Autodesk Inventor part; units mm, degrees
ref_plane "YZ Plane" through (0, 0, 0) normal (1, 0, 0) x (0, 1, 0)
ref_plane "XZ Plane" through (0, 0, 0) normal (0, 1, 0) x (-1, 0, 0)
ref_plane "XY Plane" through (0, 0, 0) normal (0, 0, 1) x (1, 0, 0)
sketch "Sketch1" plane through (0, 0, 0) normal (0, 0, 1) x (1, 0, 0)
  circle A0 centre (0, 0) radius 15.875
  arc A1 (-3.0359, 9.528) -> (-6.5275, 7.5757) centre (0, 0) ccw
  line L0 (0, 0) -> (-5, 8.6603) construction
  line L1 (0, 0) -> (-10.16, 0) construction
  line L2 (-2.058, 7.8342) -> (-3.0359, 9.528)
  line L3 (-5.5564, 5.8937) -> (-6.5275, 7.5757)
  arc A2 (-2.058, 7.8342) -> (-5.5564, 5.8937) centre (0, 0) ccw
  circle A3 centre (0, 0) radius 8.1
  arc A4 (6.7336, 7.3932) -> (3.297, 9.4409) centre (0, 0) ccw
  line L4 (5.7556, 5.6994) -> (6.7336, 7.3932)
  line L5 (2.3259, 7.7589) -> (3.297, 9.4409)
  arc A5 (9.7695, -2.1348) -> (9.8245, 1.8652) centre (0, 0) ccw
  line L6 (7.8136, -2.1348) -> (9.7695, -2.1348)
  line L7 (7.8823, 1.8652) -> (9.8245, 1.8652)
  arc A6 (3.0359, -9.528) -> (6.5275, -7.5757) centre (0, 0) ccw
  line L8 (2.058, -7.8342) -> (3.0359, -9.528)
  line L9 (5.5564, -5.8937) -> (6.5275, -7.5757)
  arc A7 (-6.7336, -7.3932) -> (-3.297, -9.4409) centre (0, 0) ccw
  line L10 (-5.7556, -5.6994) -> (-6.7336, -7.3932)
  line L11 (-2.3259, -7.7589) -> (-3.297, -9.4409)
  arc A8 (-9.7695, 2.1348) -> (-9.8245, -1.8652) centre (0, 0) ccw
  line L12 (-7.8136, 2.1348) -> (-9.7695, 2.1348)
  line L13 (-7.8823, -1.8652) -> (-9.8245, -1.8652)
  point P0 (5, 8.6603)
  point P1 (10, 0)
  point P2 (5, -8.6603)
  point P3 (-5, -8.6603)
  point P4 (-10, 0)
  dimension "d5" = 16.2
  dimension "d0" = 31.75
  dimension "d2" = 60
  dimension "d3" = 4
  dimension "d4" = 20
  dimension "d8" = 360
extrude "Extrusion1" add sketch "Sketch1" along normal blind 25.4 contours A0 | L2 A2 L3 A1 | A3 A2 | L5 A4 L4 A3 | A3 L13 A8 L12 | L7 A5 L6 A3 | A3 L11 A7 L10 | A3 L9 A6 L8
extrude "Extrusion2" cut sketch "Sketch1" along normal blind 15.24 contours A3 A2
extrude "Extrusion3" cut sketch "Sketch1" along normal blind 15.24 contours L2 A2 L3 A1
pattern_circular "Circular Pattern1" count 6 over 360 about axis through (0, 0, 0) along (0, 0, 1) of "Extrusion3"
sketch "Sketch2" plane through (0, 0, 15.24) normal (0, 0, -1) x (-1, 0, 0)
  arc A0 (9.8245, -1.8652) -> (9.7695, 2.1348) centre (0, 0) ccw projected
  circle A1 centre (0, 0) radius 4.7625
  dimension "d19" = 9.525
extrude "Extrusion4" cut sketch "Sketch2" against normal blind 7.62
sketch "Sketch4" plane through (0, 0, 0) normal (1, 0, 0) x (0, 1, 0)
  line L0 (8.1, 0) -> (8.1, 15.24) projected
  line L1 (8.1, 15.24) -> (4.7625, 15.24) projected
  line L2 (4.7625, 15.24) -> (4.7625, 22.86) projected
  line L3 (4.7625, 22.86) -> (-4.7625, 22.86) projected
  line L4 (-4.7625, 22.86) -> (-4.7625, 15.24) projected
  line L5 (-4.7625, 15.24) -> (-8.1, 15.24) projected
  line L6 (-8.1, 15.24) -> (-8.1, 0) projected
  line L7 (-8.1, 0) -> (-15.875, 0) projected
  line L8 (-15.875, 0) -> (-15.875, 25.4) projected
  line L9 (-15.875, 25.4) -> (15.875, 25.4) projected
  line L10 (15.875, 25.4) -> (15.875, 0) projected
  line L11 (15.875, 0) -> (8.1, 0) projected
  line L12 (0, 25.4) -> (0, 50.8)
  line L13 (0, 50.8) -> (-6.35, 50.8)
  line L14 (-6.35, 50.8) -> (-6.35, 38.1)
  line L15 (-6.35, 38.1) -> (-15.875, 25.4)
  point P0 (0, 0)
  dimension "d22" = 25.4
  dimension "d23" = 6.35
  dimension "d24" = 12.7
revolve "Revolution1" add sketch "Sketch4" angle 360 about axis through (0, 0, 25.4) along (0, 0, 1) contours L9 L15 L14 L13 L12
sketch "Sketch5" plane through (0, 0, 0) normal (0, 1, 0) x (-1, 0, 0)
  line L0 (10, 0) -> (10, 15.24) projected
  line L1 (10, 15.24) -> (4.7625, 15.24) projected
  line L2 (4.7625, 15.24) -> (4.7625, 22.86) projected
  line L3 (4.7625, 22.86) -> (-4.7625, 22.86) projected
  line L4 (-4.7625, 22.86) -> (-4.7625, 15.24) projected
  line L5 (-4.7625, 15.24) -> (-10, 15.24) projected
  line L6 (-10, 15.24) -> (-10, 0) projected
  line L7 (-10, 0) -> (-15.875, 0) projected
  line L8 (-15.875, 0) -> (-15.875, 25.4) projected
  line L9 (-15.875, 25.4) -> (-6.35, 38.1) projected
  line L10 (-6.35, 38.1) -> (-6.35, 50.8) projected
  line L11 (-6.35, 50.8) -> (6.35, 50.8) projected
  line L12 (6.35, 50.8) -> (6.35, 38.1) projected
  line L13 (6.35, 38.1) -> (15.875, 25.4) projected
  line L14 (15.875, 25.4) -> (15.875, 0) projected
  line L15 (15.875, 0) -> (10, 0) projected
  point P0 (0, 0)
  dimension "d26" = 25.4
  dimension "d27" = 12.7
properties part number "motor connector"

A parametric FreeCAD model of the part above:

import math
import FreeCAD as App
import Part
import Sketcher
Q = App.Units.Quantity


def add_polygon(sketch, points):
    """Adds a closed chain of lines whose ends are joined by coincident constraints."""
    first, n = sketch.GeometryCount, len(points)
    for a, b in zip(points, points[1:] + points[:1]):
        sketch.addGeometry(Part.LineSegment(App.Vector(*a, 0), App.Vector(*b, 0)), False)
    for i in range(n):
        sketch.addConstraint(Sketcher.Constraint("Coincident", first + i, 2, first + (i + 1) % n, 1))

doc = App.newDocument("Part")
body = doc.addObject("PartDesign::Body", "Body")

# Sketch on XY plane
sketch1 = body.newObject("Sketcher::SketchObject", "Sketch")
sketch1.AttachmentSupport = (doc.getObject("XY_Plane"), [""])
sketch1.MapMode = "FlatFace"
sketch1.addGeometry(Part.Circle(App.Vector(0, 0, 0), App.Vector(0, 0, 1), 15.875), False)
sketch1.addConstraint([
    Sketcher.Constraint("Coincident", 0, 3, -1, 1),
    Sketcher.Constraint("Diameter", 0, Q("1.25 in")),
])
pad1 = body.newObject("PartDesign::Pad", "Pad")
pad1.Profile = sketch1
pad1.Length = Q("1 in")

# Sketch on XY plane
sketch2 = body.newObject("Sketcher::SketchObject", "Sketch001")
sketch2.AttachmentSupport = (doc.getObject("XY_Plane"), [""])
sketch2.MapMode = "FlatFace"
sketch2.addGeometry([
    Part.ArcOfCircle(Part.Circle(App.Vector(0, 0, 0), App.Vector(0, 0, 1), 8.1), math.radians(133.312654), math.radians(464.71872)),
    Part.ArcOfCircle(Part.Circle(App.Vector(0, 0, 0), App.Vector(0, 0, 1), 8.1), math.radians(104.71872), math.radians(133.312654)),
], False)
sketch2.addConstraint([
    Sketcher.Constraint("Tangent", 0, 1, 1, 2),
    Sketcher.Constraint("Coincident", 1, 1, 0, 2),
    Sketcher.Constraint("Coincident", 0, 3, -1, 1),
    Sketcher.Constraint("Radius", 0, Q("0.3189 in")),
    Sketcher.Constraint("DistanceX", 0, 1, -1, 1, Q("0.2187559 in")),
    Sketcher.Constraint("DistanceY", 0, 1, 1, 1, Q("0.0764 in")),
])
pocket1 = body.newObject("PartDesign::Pocket", "Pocket")
pocket1.Profile = sketch2
pocket1.Length = Q("0.6 in")
pocket1.Reversed = True

# Sketch on XY plane
sketch3 = body.newObject("Sketcher::SketchObject", "Sketch002")
sketch3.AttachmentSupport = (doc.getObject("XY_Plane"), [""])
sketch3.MapMode = "FlatFace"
sketch3.addGeometry([
    Part.LineSegment(App.Vector(-2.058, 7.8342, 0), App.Vector(-3.0359, 9.528, 0)),
    Part.ArcOfCircle(Part.Circle(App.Vector(0, 0, 0), App.Vector(0, 0, 1), 9.999974), math.radians(107.673403), math.radians(130.749389)),
    Part.LineSegment(App.Vector(-6.5275, 7.5757, 0), App.Vector(-5.5564, 5.8937, 0)),
    Part.ArcOfCircle(Part.Circle(App.Vector(0, 0, 0), App.Vector(0, 0, 1), 8.1), math.radians(104.71872), math.radians(133.312654)),
], False)
sketch3.addConstraint([
    Sketcher.Constraint("Coincident", 0, 2, 1, 1),
    Sketcher.Constraint("Coincident", 1, 2, 2, 1),
    Sketcher.Constraint("Coincident", 2, 2, 3, 2),
    Sketcher.Constraint("Coincident", 3, 1, 0, 1),
    Sketcher.Constraint("Coincident", 1, 3, -1, 1),
    Sketcher.Constraint("Coincident", 3, 3, -1, 1),
    Sketcher.Constraint("Parallel", 0, 2),
    Sketcher.Constraint("Angle", 2, Q("-60 deg")),
    Sketcher.Constraint("Radius", 1, Q("0.3937 in")),
    Sketcher.Constraint("Radius", 3, Q("0.3189 in")),
    Sketcher.Constraint("Distance", 0, Q("0.077 in")),
    Sketcher.Constraint("DistanceX", 1, 2, -1, 1, Q("0.257 in")),
])
pocket2 = body.newObject("PartDesign::Pocket", "Pocket001")
pocket2.Profile = sketch3
pocket2.Length = Q("0.6 in")
pocket2.Reversed = True
doc.recompute()

polarpattern = body.newObject("PartDesign::PolarPattern", "PolarPattern")
polarpattern.Originals = [pocket2]
polarpattern.Axis = (doc.getObject("Z_Axis"), [""])
polarpattern.Angle = 360
polarpattern.Occurrences = 6
body.Tip = polarpattern

# Sketch on XY plane
sketch4 = body.newObject("Sketcher::SketchObject", "Sketch003")
sketch4.AttachmentSupport = (doc.getObject("XY_Plane"), [""])
sketch4.MapMode = "FlatFace"
sketch4.AttachmentOffset = App.Placement(App.Vector(0, 0, 0.6 * 25.4), App.Rotation())
sketch4.addGeometry(Part.Circle(App.Vector(0, 0, 0), App.Vector(0, 0, 1), 4.7625), False)
sketch4.addConstraint([
    Sketcher.Constraint("Coincident", 0, 3, -1, 1),
    Sketcher.Constraint("Diameter", 0, Q("0.375 in")),
])
pocket3 = body.newObject("PartDesign::Pocket", "Pocket002")
pocket3.Profile = sketch4
pocket3.Length = Q("0.3 in")
pocket3.Reversed = True

# Sketch on YZ plane
sketch5 = body.newObject("Sketcher::SketchObject", "Sketch004")
sketch5.AttachmentSupport = (doc.getObject("YZ_Plane"), [""])
sketch5.MapMode = "FlatFace"
add_polygon(sketch5, [(-15.875, 25.4), (0, 25.4), (0, 50.8), (-6.35, 50.8), (-6.35, 38.1)])  # lines 0-4
sketch5.addConstraint([
    Sketcher.Constraint("Horizontal", 0),
    Sketcher.Constraint("Vertical", 1),
    Sketcher.Constraint("Horizontal", 2),
    Sketcher.Constraint("Vertical", 3),
    Sketcher.Constraint("PointOnObject", 0, 2, -2),
    Sketcher.Constraint("DistanceY", 1, 1, 1, 2, Q("1 in")),
    Sketcher.Constraint("DistanceY", 3, 2, 3, 1, Q("0.5 in")),
    Sketcher.Constraint("DistanceY", -1, 1, 0, 2, Q("1 in")),
    Sketcher.Constraint("DistanceX", 2, 2, 2, 1, Q("0.25 in")),
    Sketcher.Constraint("DistanceX", 0, 1, 0, 2, Q("0.625 in")),
])
revolution = body.newObject("PartDesign::Revolution", "Revolution")
revolution.Profile = sketch5
revolution.ReferenceAxis = (sketch5, ["V_Axis"])
revolution.Angle = 360

doc.recompute()
